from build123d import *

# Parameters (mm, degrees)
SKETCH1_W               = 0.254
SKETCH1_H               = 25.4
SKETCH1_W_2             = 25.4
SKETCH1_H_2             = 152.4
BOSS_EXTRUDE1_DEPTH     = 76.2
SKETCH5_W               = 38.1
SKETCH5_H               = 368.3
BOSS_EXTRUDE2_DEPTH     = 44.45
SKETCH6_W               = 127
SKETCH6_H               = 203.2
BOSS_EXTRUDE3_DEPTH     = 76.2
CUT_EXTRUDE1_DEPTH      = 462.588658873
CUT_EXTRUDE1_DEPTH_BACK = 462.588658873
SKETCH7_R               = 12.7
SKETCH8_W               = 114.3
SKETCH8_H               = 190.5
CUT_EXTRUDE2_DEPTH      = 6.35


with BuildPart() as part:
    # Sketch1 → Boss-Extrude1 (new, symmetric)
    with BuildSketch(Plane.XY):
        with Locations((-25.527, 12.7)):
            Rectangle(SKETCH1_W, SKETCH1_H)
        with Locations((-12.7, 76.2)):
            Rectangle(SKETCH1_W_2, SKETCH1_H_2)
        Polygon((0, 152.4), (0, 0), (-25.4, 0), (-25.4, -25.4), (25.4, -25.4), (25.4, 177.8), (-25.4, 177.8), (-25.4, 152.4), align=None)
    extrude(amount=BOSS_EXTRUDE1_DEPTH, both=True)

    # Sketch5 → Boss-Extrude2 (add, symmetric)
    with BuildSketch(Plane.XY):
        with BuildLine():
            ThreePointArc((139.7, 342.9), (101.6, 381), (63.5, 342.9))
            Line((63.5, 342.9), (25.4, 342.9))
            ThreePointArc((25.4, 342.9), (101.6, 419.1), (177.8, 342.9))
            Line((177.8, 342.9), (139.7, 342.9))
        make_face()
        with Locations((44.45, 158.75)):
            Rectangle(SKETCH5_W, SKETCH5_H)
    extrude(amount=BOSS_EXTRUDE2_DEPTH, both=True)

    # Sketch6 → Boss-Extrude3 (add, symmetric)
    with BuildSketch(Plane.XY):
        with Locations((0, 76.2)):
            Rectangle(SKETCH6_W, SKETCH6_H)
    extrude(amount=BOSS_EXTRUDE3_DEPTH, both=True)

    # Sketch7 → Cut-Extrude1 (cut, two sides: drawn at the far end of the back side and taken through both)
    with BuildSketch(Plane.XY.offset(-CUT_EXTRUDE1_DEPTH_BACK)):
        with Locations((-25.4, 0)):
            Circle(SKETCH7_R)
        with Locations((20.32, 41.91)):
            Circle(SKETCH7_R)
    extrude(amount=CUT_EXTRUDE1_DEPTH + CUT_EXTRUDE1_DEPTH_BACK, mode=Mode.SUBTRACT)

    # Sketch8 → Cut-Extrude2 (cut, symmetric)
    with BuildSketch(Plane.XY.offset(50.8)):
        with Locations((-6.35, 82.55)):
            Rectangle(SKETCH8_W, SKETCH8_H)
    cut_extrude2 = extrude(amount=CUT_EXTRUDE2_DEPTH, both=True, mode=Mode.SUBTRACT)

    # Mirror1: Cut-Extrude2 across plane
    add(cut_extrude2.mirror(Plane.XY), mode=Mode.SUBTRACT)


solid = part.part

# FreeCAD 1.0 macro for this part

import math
import FreeCAD as App
import Part
import Sketcher

V = App.Vector
Q = App.Units.Quantity


def add_polygon(sketch, points):
    """Adds a closed chain of lines whose ends are joined by coincident constraints."""
    first, n = sketch.GeometryCount, len(points)
    for a, b in zip(points, points[1:] + points[:1]):
        sketch.addGeometry(Part.LineSegment(App.Vector(*a, 0), App.Vector(*b, 0)), False)
    for i in range(n):
        sketch.addConstraint(Sketcher.Constraint("Coincident", first + i, 2, first + (i + 1) % n, 1))

doc = App.newDocument("Part")
body = doc.addObject("PartDesign::Body", "Body")

# Sketch on XY plane
sketch1 = body.newObject("Sketcher::SketchObject", "Sketch")
sketch1.AttachmentSupport = (doc.getObject("XY_Plane"), [""])
sketch1.MapMode = "FlatFace"
add_polygon(sketch1, [(-25.65, 25.4), (-25.65, 0), (-25.4, 0), (-25.4, -25.4), (25.4, -25.4), (25.4, 177.8), (-25.4, 177.8), (-25.4, 25.4)])  # lines 0-7
sketch1.addConstraint(Sketcher.Constraint("Vertical", 0))
sketch1.addConstraint(Sketcher.Constraint("Horizontal", 1))
sketch1.addConstraint(Sketcher.Constraint("Vertical", 2))
sketch1.addConstraint(Sketcher.Constraint("Horizontal", 3))
sketch1.addConstraint(Sketcher.Constraint("Vertical", 4))
sketch1.addConstraint(Sketcher.Constraint("Horizontal", 5))
sketch1.addConstraint(Sketcher.Constraint("Vertical", 6))
sketch1.addConstraint(Sketcher.Constraint("Horizontal", 7))
sketch1.addConstraint(Sketcher.Constraint("Symmetric", 3, 2, 6, 2, -1, 1))
sketch1.addConstraint(Sketcher.Constraint("PointOnObject", 0, 2, -1))
sketch1.addConstraint(Sketcher.Constraint("Vertical", 2, 2, 5, 2))
sketch1.addConstraint(Sketcher.Constraint("DistanceX", 3, 1, 3, 2, Q("2 in")))
sketch1.addConstraint(Sketcher.Constraint("DistanceY", 0, 2, 0, 1, Q("1 in")))
sketch1.addConstraint(Sketcher.Constraint("DistanceY", 4, 1, 4, 2, Q("8 in")))
sketch1.addConstraint(Sketcher.Constraint("DistanceX", 1, 1, 1, 2, Q("0.01 in")))
pad1 = body.newObject("PartDesign::Pad", "Pad")
pad1.Profile = sketch1
pad1.Length = Q("6 in")
pad1.Midplane = True

# Sketch on XY plane
sketch2 = body.newObject("Sketcher::SketchObject", "Sketch001")
sketch2.AttachmentSupport = (doc.getObject("XY_Plane"), [""])
sketch2.MapMode = "FlatFace"
sketch2.addGeometry(Part.ArcOfCircle(Part.Circle(V(102, 343, 0), V(0, 0, 1), 38), math.radians(0), math.radians(180)), False)
sketch2.addGeometry(Part.LineSegment(V(140, 343, 0), V(178, 343, 0)), False)
sketch2.addGeometry(Part.ArcOfCircle(Part.Circle(V(102, 343, 0), V(0, 0, 1), 76), math.radians(0), math.radians(180)), False)
sketch2.addGeometry(Part.LineSegment(V(25, 343, 0), V(25, -25, 0)), False)
sketch2.addGeometry(Part.LineSegment(V(25, -25, 0), V(64, -25, 0)), False)
sketch2.addGeometry(Part.LineSegment(V(64, -25, 0), V(64, 343, 0)), False)
sketch2.addConstraint(Sketcher.Constraint("Coincident", 0, 1, 1, 1))
sketch2.addConstraint(Sketcher.Constraint("Coincident", 1, 2, 2, 1))
sketch2.addConstraint(Sketcher.Constraint("Tangent", 2, 2, 3, 1))
sketch2.addConstraint(Sketcher.Constraint("Coincident", 3, 2, 4, 1))
sketch2.addConstraint(Sketcher.Constraint("Coincident", 4, 2, 5, 1))
sketch2.addConstraint(Sketcher.Constraint("Tangent", 5, 2, 0, 2))
sketch2.addConstraint(Sketcher.Constraint("Horizontal", 1))
sketch2.addConstraint(Sketcher.Constraint("Vertical", 3))
sketch2.addConstraint(Sketcher.Constraint("Horizontal", 4))
sketch2.addConstraint(Sketcher.Constraint("Vertical", 5))
sketch2.addConstraint(Sketcher.Constraint("Coincident", 2, 3, 0, 3))
sketch2.addConstraint(Sketcher.Constraint("Horizontal", 2, 3, 0, 1))
sketch2.addConstraint(Sketcher.Constraint("Radius", 2, Q("3 in")))
sketch2.addConstraint(Sketcher.Constraint("Radius", 0, Q("1.5 in")))
sketch2.addConstraint(Sketcher.Constraint("DistanceY", 3, 2, 3, 1, Q("14.5 in")))
sketch2.addConstraint(Sketcher.Constraint("DistanceX", -1, 1, 0, 3, Q("4 in")))
sketch2.addConstraint(Sketcher.Constraint("DistanceY", 3, 2, -1, 1, Q("1 in")))
pad2 = body.newObject("PartDesign::Pad", "Pad001")
pad2.Profile = sketch2
pad2.Length = Q("3.5 in")
pad2.Midplane = True

# Sketch on XY plane
sketch3 = body.newObject("Sketcher::SketchObject", "Sketch002")
sketch3.AttachmentSupport = (doc.getObject("XY_Plane"), [""])
sketch3.MapMode = "FlatFace"
add_polygon(sketch3, [(-64, 178), (-64, -25), (64, -25), (64, 178)])  # lines 0-3
sketch3.addConstraint(Sketcher.Constraint("Vertical", 0))
sketch3.addConstraint(Sketcher.Constraint("Horizontal", 1))
sketch3.addConstraint(Sketcher.Constraint("Vertical", 2))
sketch3.addConstraint(Sketcher.Constraint("Horizontal", 3))
sketch3.addConstraint(Sketcher.Constraint("DistanceX", 1, 1, 1, 2, Q("5 in")))
sketch3.addConstraint(Sketcher.Constraint("DistanceY", 0, 2, 0, 1, Q("8 in")))
sketch3.addConstraint(Sketcher.Constraint("DistanceY", 0, 2, -1, 1, Q("1 in")))
sketch3.addConstraint(Sketcher.Constraint("DistanceX", 0, 2, -1, 1, Q("2.5 in")))
pad3 = body.newObject("PartDesign::Pad", "Pad002")
pad3.Profile = sketch3
pad3.Length = Q("6 in")
pad3.Midplane = True

# Sketch on XY plane
sketch4 = body.newObject("Sketcher::SketchObject", "Sketch003")
sketch4.AttachmentSupport = (doc.getObject("XY_Plane"), [""])
sketch4.MapMode = "FlatFace"
sketch4.addGeometry(Part.Circle(V(-25, 0, 0), V(0, 0, 1), 13), False)
sketch4.addGeometry(Part.Circle(V(20, 42, 0), V(0, 0, 1), 13), False)
sketch4.addConstraint(Sketcher.Constraint("Equal", 0, 1))
sketch4.addConstraint(Sketcher.Constraint("PointOnObject", 0, 3, -1))
sketch4.addConstraint(Sketcher.Constraint("Diameter", 0, Q("1 in")))
sketch4.addConstraint(Sketcher.Constraint("DistanceX", 0, 3, -1, 1, Q("1 in")))
sketch4.addConstraint(Sketcher.Constraint("DistanceX", -1, 1, 1, 3, Q("0.8 in")))
sketch4.addConstraint(Sketcher.Constraint("DistanceY", -1, 1, 1, 3, Q("1.65 in")))
pocket1 = body.newObject("PartDesign::Pocket", "Pocket")
pocket1.Profile = sketch4
pocket1.Type = "ThroughAll"
pocket1.Midplane = True

# Sketch on XY plane
sketch5 = body.newObject("Sketcher::SketchObject", "Sketch004")
sketch5.AttachmentSupport = (doc.getObject("XY_Plane"), [""])
sketch5.MapMode = "FlatFace"
sketch5.AttachmentOffset = App.Placement(V(0, 0, 2 * 25.4), App.Rotation())
add_polygon(sketch5, [(-64, 178), (-64, -13), (51, -13), (51, 178)])  # lines 0-3
sketch5.addConstraint(Sketcher.Constraint("Vertical", 0))
sketch5.addConstraint(Sketcher.Constraint("Horizontal", 1))
sketch5.addConstraint(Sketcher.Constraint("Vertical", 2))
sketch5.addConstraint(Sketcher.Constraint("Horizontal", 3))
sketch5.addConstraint(Sketcher.Constraint("DistanceX", 1, 1, 1, 2, Q("4.5 in")))
sketch5.addConstraint(Sketcher.Constraint("DistanceY", 0, 2, 0, 1, Q("7.5 in")))
sketch5.addConstraint(Sketcher.Constraint("DistanceX", -1, 1, 1, 2, Q("2 in")))
sketch5.addConstraint(Sketcher.Constraint("DistanceY", -1, 1, 2, 2, Q("7 in")))
pocket2 = body.newObject("PartDesign::Pocket", "Pocket001")
pocket2.Profile = sketch5
pocket2.Length = Q("0.5 in")
pocket2.Midplane = True
doc.recompute()

mirrored = body.newObject("PartDesign::Mirrored", "Mirrored")
mirrored.Originals = [pocket2]
mirrored.MirrorPlane = (doc.getObject("XY_Plane"), [""])
body.Tip = mirrored

doc.recompute()
